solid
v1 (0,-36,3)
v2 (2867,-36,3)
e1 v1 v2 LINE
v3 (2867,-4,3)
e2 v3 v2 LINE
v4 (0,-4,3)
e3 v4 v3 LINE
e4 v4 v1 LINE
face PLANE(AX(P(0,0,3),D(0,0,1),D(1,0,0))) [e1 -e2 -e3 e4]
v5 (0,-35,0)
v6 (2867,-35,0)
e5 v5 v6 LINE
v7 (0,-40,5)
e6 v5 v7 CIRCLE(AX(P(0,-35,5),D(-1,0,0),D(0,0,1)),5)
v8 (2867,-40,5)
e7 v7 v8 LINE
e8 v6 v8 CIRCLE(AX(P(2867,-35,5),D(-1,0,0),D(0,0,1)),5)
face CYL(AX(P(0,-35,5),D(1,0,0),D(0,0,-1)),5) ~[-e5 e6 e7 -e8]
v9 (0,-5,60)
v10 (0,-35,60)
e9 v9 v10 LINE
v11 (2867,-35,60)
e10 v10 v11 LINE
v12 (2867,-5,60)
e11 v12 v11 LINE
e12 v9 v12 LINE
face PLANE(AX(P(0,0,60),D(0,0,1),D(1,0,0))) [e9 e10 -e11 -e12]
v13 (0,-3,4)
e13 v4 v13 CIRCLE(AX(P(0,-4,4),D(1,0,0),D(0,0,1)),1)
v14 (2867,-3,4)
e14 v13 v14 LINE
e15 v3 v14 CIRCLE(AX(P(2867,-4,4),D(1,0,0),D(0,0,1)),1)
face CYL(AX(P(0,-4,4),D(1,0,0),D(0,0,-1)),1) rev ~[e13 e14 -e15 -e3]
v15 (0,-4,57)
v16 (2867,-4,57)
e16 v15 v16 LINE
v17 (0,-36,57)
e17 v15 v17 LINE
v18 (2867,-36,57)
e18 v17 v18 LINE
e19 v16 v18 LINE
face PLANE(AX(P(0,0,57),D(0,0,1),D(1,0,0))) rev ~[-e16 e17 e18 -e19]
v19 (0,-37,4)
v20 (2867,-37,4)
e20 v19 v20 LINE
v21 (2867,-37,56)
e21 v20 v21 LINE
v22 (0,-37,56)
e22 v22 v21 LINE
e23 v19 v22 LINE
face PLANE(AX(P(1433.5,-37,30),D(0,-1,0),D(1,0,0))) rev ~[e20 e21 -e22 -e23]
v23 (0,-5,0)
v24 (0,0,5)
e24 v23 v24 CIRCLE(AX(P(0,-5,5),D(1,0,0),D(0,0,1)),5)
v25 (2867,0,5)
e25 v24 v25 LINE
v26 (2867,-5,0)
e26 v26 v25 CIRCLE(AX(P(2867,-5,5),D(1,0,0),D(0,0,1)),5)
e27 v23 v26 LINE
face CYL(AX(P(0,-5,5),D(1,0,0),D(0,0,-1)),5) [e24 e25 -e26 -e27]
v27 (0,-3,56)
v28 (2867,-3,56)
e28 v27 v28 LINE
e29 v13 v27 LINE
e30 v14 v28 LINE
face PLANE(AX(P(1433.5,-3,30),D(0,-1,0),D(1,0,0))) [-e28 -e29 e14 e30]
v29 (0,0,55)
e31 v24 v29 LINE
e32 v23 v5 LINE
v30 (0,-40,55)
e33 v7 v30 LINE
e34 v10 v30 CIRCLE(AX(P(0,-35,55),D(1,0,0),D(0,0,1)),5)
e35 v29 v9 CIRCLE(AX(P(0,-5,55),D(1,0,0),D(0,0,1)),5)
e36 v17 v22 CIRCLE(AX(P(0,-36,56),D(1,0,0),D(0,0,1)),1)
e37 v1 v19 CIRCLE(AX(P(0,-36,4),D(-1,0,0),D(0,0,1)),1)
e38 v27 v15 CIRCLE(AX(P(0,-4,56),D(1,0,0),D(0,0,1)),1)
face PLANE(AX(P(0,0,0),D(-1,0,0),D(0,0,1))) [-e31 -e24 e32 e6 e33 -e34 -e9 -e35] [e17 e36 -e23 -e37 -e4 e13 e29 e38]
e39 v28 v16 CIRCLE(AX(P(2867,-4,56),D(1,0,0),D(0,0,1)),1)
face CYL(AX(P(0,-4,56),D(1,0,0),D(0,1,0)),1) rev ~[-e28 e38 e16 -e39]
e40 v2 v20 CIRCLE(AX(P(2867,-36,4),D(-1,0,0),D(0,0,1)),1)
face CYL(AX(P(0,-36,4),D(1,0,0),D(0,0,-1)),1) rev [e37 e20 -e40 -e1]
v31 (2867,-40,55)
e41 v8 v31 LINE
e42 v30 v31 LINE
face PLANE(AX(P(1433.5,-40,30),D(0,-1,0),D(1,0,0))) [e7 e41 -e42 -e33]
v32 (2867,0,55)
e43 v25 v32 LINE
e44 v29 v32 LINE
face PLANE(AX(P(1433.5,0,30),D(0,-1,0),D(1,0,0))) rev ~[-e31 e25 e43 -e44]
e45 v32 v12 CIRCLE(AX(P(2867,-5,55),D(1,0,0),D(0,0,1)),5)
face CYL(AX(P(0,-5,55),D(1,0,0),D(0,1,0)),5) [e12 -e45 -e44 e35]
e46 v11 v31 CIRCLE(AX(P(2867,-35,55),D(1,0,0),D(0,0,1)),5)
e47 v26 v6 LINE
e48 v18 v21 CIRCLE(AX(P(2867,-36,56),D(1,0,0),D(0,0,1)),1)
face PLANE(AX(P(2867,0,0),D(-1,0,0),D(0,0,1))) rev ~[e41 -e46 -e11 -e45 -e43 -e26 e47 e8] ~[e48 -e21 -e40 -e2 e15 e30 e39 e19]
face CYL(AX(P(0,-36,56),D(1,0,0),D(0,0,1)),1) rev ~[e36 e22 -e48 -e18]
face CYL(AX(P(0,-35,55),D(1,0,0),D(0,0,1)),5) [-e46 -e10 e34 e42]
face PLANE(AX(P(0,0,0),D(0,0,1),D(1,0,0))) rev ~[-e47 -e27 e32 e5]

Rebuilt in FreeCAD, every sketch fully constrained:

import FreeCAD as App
import Part
import Sketcher
from FreeCAD import Vector


def edges_at(feature, points):
    """Names of the edges that pass closest to the given points."""
    edges = feature.Shape.Edges
    near = lambda p: min(range(len(edges)), key=lambda i: edges[i].distToShape(Part.Vertex(*p))[0])
    return sorted({f"Edge{near(p) + 1}" for p in points})


def faces_at(feature, points):
    """Names of the faces that lie closest to the given points."""
    faces = feature.Shape.Faces
    near = lambda p: min(range(len(faces)), key=lambda i: faces[i].distToShape(Part.Vertex(*p))[0])
    return sorted({f"Face{near(p) + 1}" for p in points})


def add_polygon(sketch, points):
    """Adds a closed chain of lines whose ends are joined by coincident constraints."""
    first, n = sketch.GeometryCount, len(points)
    for a, b in zip(points, points[1:] + points[:1]):
        sketch.addGeometry(Part.LineSegment(App.Vector(*a, 0), App.Vector(*b, 0)), False)
    for i in range(n):
        sketch.addConstraint(Sketcher.Constraint("Coincident", first + i, 2, first + (i + 1) % n, 1))

doc = App.newDocument("Part")
body = doc.addObject("PartDesign::Body", "Body")

# Sketch on XZ plane
sketch1 = body.newObject("Sketcher::SketchObject", "Sketch")
sketch1.AttachmentSupport = (doc.getObject("XZ_Plane"), [""])
sketch1.MapMode = "FlatFace"
add_polygon(sketch1, [(0, 60), (0, 0), (2867, 0), (2867, 60)])  # lines 0-3
sketch1.addConstraint([
    Sketcher.Constraint("Vertical", 0),
    Sketcher.Constraint("Horizontal", 1),
    Sketcher.Constraint("Vertical", 2),
    Sketcher.Constraint("Horizontal", 3),
    Sketcher.Constraint("Coincident", 0, 2, -1, 1),
    Sketcher.Constraint("DistanceX", 1, 1, 1, 2, 2867.0),
    Sketcher.Constraint("DistanceY", 0, 2, 0, 1, 60.0),
])
pad1 = body.newObject("PartDesign::Pad", "Pad")
pad1.Profile = sketch1
pad1.Length = 40
doc.recompute()

thickness = body.newObject("PartDesign::Thickness", "Thickness")
thickness.Base = (pad1, faces_at(pad1, [(0, -20, 30), (2867, -20, 30)]))
thickness.Value = 3
thickness.Reversed = True
thickness.Join = "Arc"
doc.recompute()

fillet = body.newObject("PartDesign::Fillet", "Fillet")
fillet.Base = (thickness, edges_at(thickness, [
    (1433.5, -40, 60),
    (1433.5, -40, 0),
    (1433.5, 0, 0),
    (1433.5, 0, 60),
]))
fillet.Radius = 5
doc.recompute()

fillet2 = body.newObject("PartDesign::Fillet", "Fillet001")
fillet2.Base = (fillet, edges_at(fillet, [
    (1433.5, -3, 3),
    (1433.5, -37, 3),
    (1433.5, -3, 57),
    (1433.5, -37, 57),
]))
fillet2.Radius = 1

doc.recompute()
